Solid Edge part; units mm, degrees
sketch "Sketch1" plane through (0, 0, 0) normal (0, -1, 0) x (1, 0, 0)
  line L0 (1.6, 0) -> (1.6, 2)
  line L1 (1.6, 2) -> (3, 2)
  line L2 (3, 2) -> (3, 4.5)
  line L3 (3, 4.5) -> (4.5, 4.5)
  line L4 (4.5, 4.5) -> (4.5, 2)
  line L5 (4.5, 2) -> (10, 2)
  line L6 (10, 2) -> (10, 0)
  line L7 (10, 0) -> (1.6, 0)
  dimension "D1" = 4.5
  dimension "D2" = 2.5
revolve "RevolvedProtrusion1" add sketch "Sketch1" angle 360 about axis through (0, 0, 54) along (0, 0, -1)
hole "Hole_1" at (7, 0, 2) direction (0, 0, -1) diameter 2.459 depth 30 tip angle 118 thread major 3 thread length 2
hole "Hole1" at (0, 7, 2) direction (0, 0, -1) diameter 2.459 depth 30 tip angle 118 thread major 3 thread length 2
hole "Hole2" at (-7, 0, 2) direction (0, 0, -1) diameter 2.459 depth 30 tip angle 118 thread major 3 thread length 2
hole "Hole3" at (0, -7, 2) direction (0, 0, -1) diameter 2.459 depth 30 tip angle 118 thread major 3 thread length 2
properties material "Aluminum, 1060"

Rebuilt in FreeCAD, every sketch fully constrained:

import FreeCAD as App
import Part
import Sketcher
from FreeCAD import Vector

doc = App.newDocument("Part")
body = doc.addObject("PartDesign::Body", "Body")

# Sketch on XZ plane
sketch1 = body.newObject("Sketcher::SketchObject", "Sketch")
sketch1.AttachmentSupport = (doc.getObject("XZ_Plane"), [""])
sketch1.MapMode = "FlatFace"
sketch1.addGeometry([
    Part.LineSegment(Vector(1.6, 2, 0), Vector(1.6, 0, 0)),  # 0
    Part.LineSegment(Vector(1.6, 0, 0), Vector(10, 0, 0)),  # 1
    Part.LineSegment(Vector(10, 0, 0), Vector(10, 2, 0)),  # 2
    Part.LineSegment(Vector(10, 2, 0), Vector(4.5, 2, 0)),  # 3
    Part.LineSegment(Vector(4.5, 2, 0), Vector(4.5, 4.5, 0)),  # 4
    Part.LineSegment(Vector(4.5, 4.5, 0), Vector(3, 4.5, 0)),  # 5
    Part.LineSegment(Vector(3, 4.5, 0), Vector(3, 2, 0)),  # 6
    Part.LineSegment(Vector(3, 2, 0), Vector(1.6, 2, 0)),  # 7
], False)
sketch1.addConstraint([
    Sketcher.Constraint("Coincident", 0, 2, 1, 1),
    Sketcher.Constraint("Coincident", 1, 2, 2, 1),
    Sketcher.Constraint("Coincident", 2, 2, 3, 1),
    Sketcher.Constraint("Coincident", 3, 2, 4, 1),
    Sketcher.Constraint("Coincident", 4, 2, 5, 1),
    Sketcher.Constraint("Coincident", 5, 2, 6, 1),
    Sketcher.Constraint("Coincident", 6, 2, 7, 1),
    Sketcher.Constraint("Coincident", 7, 2, 0, 1),
    Sketcher.Constraint("Vertical", 0),
    Sketcher.Constraint("Horizontal", 1),
    Sketcher.Constraint("Vertical", 2),
    Sketcher.Constraint("Horizontal", 3),
    Sketcher.Constraint("Vertical", 4),
    Sketcher.Constraint("Horizontal", 5),
    Sketcher.Constraint("Vertical", 6),
    Sketcher.Constraint("Horizontal", 7),
    Sketcher.Constraint("PointOnObject", 0, 2, -1),
    Sketcher.Constraint("Horizontal", 3, 2, 6, 2),
    Sketcher.Constraint("DistanceY", 0, 2, 0, 1, 2.0),
    Sketcher.Constraint("DistanceX", 1, 1, 1, 2, 8.4),
    Sketcher.Constraint("DistanceX", 3, 2, 3, 1, 5.5),
    Sketcher.Constraint("DistanceX", 5, 2, 5, 1, 1.5),
    Sketcher.Constraint("DistanceY", 4, 1, 4, 2, 2.5),
    Sketcher.Constraint("DistanceX", -1, 1, 1, 2, 10.0),
])
revolution = body.newObject("PartDesign::Revolution", "Revolution")
revolution.Profile = sketch1
revolution.ReferenceAxis = (sketch1, ["V_Axis"])
revolution.Angle = 360

# Sketch on XY plane
sketch2 = body.newObject("Sketcher::SketchObject", "Sketch001")
sketch2.AttachmentSupport = (doc.getObject("XY_Plane"), [""])
sketch2.MapMode = "FlatFace"
sketch2.AttachmentOffset = App.Placement(Vector(0, 0, 2), App.Rotation())
sketch2.addGeometry(Part.Circle(Vector(7, 0, 0), Vector(0, 0, 1), 1.2), False)
sketch2.addConstraint([
    Sketcher.Constraint("PointOnObject", 0, 3, -1),
    Sketcher.Constraint("Diameter", 0, 2.459),
    Sketcher.Constraint("DistanceX", -1, 1, 0, 3, 7.0),
])
doc.recompute()
hole = body.newObject("PartDesign::Hole", "Hole")
hole.Profile = sketch2
hole.ThreadType = "None"
hole.Diameter = 2.459
hole.DepthType = "Dimension"
hole.Depth = 30
hole.DrillPoint = "Angled"
hole.DrillPointAngle = 118

# Sketch on XY plane
sketch3 = body.newObject("Sketcher::SketchObject", "Sketch002")
sketch3.AttachmentSupport = (doc.getObject("XY_Plane"), [""])
sketch3.MapMode = "FlatFace"
sketch3.AttachmentOffset = App.Placement(Vector(0, 0, 2), App.Rotation())
sketch3.addGeometry(Part.Circle(Vector(0, 7, 0), Vector(0, 0, 1), 1.2), False)
sketch3.addConstraint([
    Sketcher.Constraint("PointOnObject", 0, 3, -2),
    Sketcher.Constraint("Diameter", 0, 2.459),
    Sketcher.Constraint("DistanceY", -1, 1, 0, 3, 7.0),
])
doc.recompute()
hole2 = body.newObject("PartDesign::Hole", "Hole001")
hole2.Profile = sketch3
hole2.ThreadType = "None"
hole2.Diameter = 2.459
hole2.DepthType = "Dimension"
hole2.Depth = 30
hole2.DrillPoint = "Angled"
hole2.DrillPointAngle = 118

# Sketch on XY plane
sketch4 = body.newObject("Sketcher::SketchObject", "Sketch003")
sketch4.AttachmentSupport = (doc.getObject("XY_Plane"), [""])
sketch4.MapMode = "FlatFace"
sketch4.AttachmentOffset = App.Placement(Vector(0, 0, 2), App.Rotation())
sketch4.addGeometry(Part.Circle(Vector(-7, 0, 0), Vector(0, 0, 1), 1.2), False)
sketch4.addConstraint([
    Sketcher.Constraint("PointOnObject", 0, 3, -1),
    Sketcher.Constraint("Diameter", 0, 2.459),
    Sketcher.Constraint("DistanceX", 0, 3, -1, 1, 7.0),
])
doc.recompute()
hole3 = body.newObject("PartDesign::Hole", "Hole002")
hole3.Profile = sketch4
hole3.ThreadType = "None"
hole3.Diameter = 2.459
hole3.DepthType = "Dimension"
hole3.Depth = 30
hole3.DrillPoint = "Angled"
hole3.DrillPointAngle = 118

# Sketch on XY plane
sketch5 = body.newObject("Sketcher::SketchObject", "Sketch004")
sketch5.AttachmentSupport = (doc.getObject("XY_Plane"), [""])
sketch5.MapMode = "FlatFace"
sketch5.AttachmentOffset = App.Placement(Vector(0, 0, 2), App.Rotation())
sketch5.addGeometry(Part.Circle(Vector(0, -7, 0), Vector(0, 0, 1), 1.2), False)
sketch5.addConstraint([
    Sketcher.Constraint("PointOnObject", 0, 3, -2),
    Sketcher.Constraint("Diameter", 0, 2.459),
    Sketcher.Constraint("DistanceY", 0, 3, -1, 1, 7.0),
])
doc.recompute()
hole4 = body.newObject("PartDesign::Hole", "Hole003")
hole4.Profile = sketch5
hole4.ThreadType = "None"
hole4.Diameter = 2.459
hole4.DepthType = "Dimension"
hole4.Depth = 30
hole4.DrillPoint = "Angled"
hole4.DrillPointAngle = 118

doc.recompute()
